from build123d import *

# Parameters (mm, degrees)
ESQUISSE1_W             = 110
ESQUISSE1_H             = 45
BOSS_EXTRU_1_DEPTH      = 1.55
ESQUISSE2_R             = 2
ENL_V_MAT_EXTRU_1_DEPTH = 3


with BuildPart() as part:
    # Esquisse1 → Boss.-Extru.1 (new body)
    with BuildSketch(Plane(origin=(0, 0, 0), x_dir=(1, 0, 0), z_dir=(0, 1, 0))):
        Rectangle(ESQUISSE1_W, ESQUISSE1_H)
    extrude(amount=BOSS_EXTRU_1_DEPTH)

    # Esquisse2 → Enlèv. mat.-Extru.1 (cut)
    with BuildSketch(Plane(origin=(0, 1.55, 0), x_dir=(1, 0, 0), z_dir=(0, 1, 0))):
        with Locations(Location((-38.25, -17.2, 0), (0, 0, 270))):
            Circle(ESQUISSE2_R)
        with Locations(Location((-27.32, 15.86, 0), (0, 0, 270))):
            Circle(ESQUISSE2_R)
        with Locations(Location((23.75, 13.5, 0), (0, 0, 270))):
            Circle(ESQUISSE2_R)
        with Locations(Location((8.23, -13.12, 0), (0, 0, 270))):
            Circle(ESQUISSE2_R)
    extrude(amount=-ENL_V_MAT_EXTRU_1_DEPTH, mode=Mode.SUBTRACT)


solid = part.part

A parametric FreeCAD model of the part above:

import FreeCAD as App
import Part
import Sketcher
from FreeCAD import Vector

doc = App.newDocument("Part")
body = doc.addObject("PartDesign::Body", "Body")

sketch1 = body.newObject("Sketcher::SketchObject", "Sketch")
sketch1.AttachmentSupport = (doc.getObject("XZ_Plane"), [""])
sketch1.MapMode = "FlatFace"
sketch1.addGeometry([
    Part.LineSegment(Vector(-55, -22, 0), Vector(-55, 22, 0)),
    Part.LineSegment(Vector(-55, 22, 0), Vector(55, 22, 0)),
    Part.LineSegment(Vector(55, 22, 0), Vector(55, -22, 0)),
    Part.LineSegment(Vector(55, -22, 0), Vector(-55, -22, 0)),
], False)
sketch1.addConstraint([
    Sketcher.Constraint("Coincident", 0, 2, 1, 1),
    Sketcher.Constraint("Coincident", 1, 2, 2, 1),
    Sketcher.Constraint("Coincident", 2, 2, 3, 1),
    Sketcher.Constraint("Coincident", 3, 2, 0, 1),
    Sketcher.Constraint("Vertical", 0),
    Sketcher.Constraint("Horizontal", 1),
    Sketcher.Constraint("Vertical", 2),
    Sketcher.Constraint("Horizontal", 3),
    Sketcher.Constraint("Symmetric", 0, 2, 2, 2, -1, 1),
    Sketcher.Constraint("DistanceX", 1, 1, 1, 2, 110.0),
    Sketcher.Constraint("DistanceY", 0, 1, 0, 2, 45.0),
])
pad1 = body.newObject("PartDesign::Pad", "Pad")
pad1.Profile = sketch1
pad1.Length = 1.55
pad1.Reversed = True

sketch2 = body.newObject("Sketcher::SketchObject", "Sketch001")
sketch2.AttachmentSupport = (doc.getObject("XZ_Plane"), [""])
sketch2.MapMode = "FlatFace"
sketch2.AttachmentOffset = App.Placement(Vector(0, 0, -1.55), App.Rotation())
sketch2.addGeometry([
    Part.Circle(Vector(-38.2, 17.2, 0), Vector(0, 0, 1), 2),
    Part.Circle(Vector(-27.3, -15.9, 0), Vector(0, 0, 1), 2),
    Part.Circle(Vector(23.8, -13.5, 0), Vector(0, 0, 1), 2),
    Part.Circle(Vector(8.2, 13.1, 0), Vector(0, 0, 1), 2),
], False)
sketch2.addConstraint([
    Sketcher.Constraint("Equal", 0, 1),
    Sketcher.Constraint("Equal", 1, 2),
    Sketcher.Constraint("Equal", 2, 3),
    Sketcher.Constraint("Diameter", 0, 4.0),
    Sketcher.Constraint("DistanceX", 0, 3, 2, 3, 62.0),
    Sketcher.Constraint("DistanceY", -1, 1, 0, 3, 17.2),
    Sketcher.Constraint("DistanceY", 2, 3, -1, 1, 13.5),
    Sketcher.Constraint("DistanceX", 0, 3, -1, 1, 38.25),
    Sketcher.Constraint("DistanceX", 1, 3, -1, 1, 27.32),
    Sketcher.Constraint("DistanceY", 1, 3, -1, 1, 15.86),
    Sketcher.Constraint("DistanceX", -1, 1, 3, 3, 8.23),
    Sketcher.Constraint("DistanceY", -1, 1, 3, 3, 13.12),
])
pocket1 = body.newObject("PartDesign::Pocket", "Pocket")
pocket1.Profile = sketch2
pocket1.Length = 3
pocket1.Reversed = True

doc.recompute()
